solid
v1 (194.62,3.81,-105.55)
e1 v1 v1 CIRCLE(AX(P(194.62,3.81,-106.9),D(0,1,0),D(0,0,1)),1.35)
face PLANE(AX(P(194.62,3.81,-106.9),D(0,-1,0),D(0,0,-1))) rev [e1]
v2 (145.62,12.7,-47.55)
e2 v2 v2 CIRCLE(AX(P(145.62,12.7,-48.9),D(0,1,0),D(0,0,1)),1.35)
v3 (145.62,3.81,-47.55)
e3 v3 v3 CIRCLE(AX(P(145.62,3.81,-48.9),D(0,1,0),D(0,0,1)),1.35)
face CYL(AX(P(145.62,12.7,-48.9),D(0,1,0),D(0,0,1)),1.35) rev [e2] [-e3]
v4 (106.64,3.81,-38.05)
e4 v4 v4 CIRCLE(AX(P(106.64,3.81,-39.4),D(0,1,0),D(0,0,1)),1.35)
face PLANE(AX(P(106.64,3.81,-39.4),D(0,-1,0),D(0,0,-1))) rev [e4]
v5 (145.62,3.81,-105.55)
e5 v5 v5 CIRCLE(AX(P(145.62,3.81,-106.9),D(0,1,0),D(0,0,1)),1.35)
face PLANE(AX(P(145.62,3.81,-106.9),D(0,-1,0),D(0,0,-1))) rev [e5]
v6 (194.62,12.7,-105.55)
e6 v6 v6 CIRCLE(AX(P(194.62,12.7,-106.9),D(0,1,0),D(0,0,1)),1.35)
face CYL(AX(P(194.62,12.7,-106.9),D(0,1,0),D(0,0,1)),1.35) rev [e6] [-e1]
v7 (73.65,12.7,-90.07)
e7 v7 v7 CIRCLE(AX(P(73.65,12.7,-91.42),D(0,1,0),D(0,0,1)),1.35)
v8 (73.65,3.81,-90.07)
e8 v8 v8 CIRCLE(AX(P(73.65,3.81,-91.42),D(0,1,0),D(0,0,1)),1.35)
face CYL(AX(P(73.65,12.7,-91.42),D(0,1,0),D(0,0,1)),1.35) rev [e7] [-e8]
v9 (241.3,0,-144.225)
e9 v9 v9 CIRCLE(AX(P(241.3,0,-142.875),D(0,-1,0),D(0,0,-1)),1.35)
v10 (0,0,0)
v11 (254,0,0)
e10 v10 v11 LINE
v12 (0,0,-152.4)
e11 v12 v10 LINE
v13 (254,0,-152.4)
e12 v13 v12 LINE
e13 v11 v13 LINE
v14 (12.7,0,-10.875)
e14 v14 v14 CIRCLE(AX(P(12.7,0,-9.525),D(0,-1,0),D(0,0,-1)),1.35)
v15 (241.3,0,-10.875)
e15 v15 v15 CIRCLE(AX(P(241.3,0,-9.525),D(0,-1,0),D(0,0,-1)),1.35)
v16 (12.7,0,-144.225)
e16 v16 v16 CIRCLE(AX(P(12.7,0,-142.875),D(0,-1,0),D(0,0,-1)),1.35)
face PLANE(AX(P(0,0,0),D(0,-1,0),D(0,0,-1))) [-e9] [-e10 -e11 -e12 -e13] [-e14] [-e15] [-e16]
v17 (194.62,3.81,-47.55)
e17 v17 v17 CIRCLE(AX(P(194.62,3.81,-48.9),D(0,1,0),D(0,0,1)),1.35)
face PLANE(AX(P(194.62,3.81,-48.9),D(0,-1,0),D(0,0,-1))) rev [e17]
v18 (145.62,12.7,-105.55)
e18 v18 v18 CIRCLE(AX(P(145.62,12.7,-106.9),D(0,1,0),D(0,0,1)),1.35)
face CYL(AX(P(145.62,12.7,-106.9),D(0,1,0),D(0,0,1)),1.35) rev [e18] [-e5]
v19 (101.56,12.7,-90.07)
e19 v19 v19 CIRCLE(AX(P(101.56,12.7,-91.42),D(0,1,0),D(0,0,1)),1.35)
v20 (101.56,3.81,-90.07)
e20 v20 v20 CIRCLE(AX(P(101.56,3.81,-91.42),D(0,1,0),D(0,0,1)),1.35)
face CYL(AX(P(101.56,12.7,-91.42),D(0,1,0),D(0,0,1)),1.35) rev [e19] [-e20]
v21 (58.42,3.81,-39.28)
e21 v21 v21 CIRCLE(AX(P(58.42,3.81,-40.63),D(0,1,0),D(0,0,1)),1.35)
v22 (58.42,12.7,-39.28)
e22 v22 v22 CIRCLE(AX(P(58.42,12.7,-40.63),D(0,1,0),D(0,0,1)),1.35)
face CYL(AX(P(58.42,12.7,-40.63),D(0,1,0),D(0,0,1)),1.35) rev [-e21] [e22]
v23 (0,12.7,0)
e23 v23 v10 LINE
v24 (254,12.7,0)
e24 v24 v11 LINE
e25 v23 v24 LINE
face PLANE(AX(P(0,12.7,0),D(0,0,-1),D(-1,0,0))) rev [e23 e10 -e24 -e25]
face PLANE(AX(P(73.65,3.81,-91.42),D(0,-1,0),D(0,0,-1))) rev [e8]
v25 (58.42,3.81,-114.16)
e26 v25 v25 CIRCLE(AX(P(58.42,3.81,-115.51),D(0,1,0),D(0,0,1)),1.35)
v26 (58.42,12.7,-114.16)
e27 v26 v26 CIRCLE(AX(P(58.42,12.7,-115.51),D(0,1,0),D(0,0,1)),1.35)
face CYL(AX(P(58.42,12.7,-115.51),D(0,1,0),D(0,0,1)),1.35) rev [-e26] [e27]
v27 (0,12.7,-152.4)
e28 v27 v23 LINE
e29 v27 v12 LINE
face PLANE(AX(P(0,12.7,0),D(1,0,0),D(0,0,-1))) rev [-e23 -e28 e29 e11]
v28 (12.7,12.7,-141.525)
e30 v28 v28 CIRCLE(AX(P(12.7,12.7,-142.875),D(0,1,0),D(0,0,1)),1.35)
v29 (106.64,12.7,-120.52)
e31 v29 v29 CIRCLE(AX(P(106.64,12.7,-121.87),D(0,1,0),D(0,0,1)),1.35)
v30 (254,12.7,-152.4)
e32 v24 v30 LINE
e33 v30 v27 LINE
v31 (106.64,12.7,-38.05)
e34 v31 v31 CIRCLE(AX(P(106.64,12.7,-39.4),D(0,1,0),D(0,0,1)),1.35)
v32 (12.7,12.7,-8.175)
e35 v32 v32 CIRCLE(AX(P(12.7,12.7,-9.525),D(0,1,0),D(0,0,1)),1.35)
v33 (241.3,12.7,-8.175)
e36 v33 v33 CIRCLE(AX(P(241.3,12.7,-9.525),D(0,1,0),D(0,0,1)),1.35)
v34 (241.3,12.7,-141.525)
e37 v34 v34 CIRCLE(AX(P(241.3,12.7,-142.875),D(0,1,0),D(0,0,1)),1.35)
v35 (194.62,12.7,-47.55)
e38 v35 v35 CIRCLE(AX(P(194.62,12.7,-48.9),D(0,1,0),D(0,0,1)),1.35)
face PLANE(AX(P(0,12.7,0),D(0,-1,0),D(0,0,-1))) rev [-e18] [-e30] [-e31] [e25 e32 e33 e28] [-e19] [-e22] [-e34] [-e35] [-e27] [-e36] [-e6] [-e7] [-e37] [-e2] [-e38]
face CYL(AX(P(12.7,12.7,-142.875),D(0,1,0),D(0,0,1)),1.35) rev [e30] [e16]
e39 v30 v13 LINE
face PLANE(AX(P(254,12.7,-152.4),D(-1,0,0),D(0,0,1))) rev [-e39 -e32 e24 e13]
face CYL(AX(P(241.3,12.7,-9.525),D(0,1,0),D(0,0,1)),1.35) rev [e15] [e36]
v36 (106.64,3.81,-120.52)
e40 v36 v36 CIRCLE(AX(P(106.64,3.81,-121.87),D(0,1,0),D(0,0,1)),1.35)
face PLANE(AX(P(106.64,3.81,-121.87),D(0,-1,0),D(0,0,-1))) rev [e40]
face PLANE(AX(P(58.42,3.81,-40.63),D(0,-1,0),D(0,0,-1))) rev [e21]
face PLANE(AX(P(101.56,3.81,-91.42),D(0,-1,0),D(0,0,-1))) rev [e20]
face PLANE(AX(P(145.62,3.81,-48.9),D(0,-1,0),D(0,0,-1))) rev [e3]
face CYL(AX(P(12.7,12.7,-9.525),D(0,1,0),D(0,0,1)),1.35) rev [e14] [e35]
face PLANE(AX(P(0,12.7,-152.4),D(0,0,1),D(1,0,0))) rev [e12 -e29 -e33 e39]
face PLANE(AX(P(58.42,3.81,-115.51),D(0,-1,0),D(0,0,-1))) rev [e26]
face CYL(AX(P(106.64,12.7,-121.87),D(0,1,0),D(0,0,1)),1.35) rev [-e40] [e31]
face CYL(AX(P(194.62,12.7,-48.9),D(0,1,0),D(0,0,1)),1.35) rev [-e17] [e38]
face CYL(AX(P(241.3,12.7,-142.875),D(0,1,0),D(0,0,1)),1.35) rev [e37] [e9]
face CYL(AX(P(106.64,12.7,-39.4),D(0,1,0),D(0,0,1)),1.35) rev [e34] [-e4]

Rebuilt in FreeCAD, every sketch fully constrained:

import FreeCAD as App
import Part
import Sketcher
from FreeCAD import Vector
Q = App.Units.Quantity


def add_polygon(sketch, points):
    """Adds a closed chain of lines whose ends are joined by coincident constraints."""
    first, n = sketch.GeometryCount, len(points)
    for a, b in zip(points, points[1:] + points[:1]):
        sketch.addGeometry(Part.LineSegment(App.Vector(*a, 0), App.Vector(*b, 0)), False)
    for i in range(n):
        sketch.addConstraint(Sketcher.Constraint("Coincident", first + i, 2, first + (i + 1) % n, 1))

doc = App.newDocument("Part")
body = doc.addObject("PartDesign::Body", "Body")

# Sketch on XZ plane
sketch1 = body.newObject("Sketcher::SketchObject", "Sketch")
sketch1.AttachmentSupport = (doc.getObject("XZ_Plane"), [""])
sketch1.MapMode = "FlatFace"
add_polygon(sketch1, [(0, -152), (0, 0), (254, 0), (254, -152)])  # lines 0-3
sketch1.addConstraint([
    Sketcher.Constraint("Vertical", 0),
    Sketcher.Constraint("Horizontal", 1),
    Sketcher.Constraint("Vertical", 2),
    Sketcher.Constraint("Horizontal", 3),
    Sketcher.Constraint("Coincident", 0, 2, -1, 1),
    Sketcher.Constraint("DistanceX", 1, 1, 1, 2, Q("10 in")),
    Sketcher.Constraint("DistanceY", 0, 1, 0, 2, Q("6 in")),
])
pad1 = body.newObject("PartDesign::Pad", "Pad")
pad1.Profile = sketch1
pad1.Length = Q("0.5 in")
pad1.Reversed = True

# Sketch on XZ plane
sketch2 = body.newObject("Sketcher::SketchObject", "Sketch001")
sketch2.AttachmentSupport = (doc.getObject("XZ_Plane"), [""])
sketch2.MapMode = "FlatFace"
sketch2.AttachmentOffset = App.Placement(Vector(0, 0, -0.5 * 25.4), App.Rotation())
sketch2.addGeometry([
    Part.Circle(Vector(194.6, -48.9, 0), Vector(0, 0, 1), 1.4),  # 0
    Part.Circle(Vector(194.6, -106.9, 0), Vector(0, 0, 1), 1.4),  # 1
    Part.Circle(Vector(145.6, -106.9, 0), Vector(0, 0, 1), 1.4),  # 2
    Part.Circle(Vector(145.6, -48.9, 0), Vector(0, 0, 1), 1.4),  # 3
    Part.Circle(Vector(106.6, -121.9, 0), Vector(0, 0, 1), 1.4),  # 4
    Part.Circle(Vector(58.4, -115.5, 0), Vector(0, 0, 1), 1.4),  # 5
    Part.Circle(Vector(101.6, -91.4, 0), Vector(0, 0, 1), 1.4),  # 6
    Part.Circle(Vector(73.7, -91.4, 0), Vector(0, 0, 1), 1.4),  # 7
    Part.Circle(Vector(58.4, -40.6, 0), Vector(0, 0, 1), 1.4),  # 8
    Part.Circle(Vector(106.6, -39.4, 0), Vector(0, 0, 1), 1.4),  # 9
], False)
sketch2.addConstraint([
    Sketcher.Constraint("Equal", 0, 1),
    Sketcher.Constraint("Equal", 1, 2),
    Sketcher.Constraint("Equal", 2, 3),
    Sketcher.Constraint("Equal", 3, 4),
    Sketcher.Constraint("Equal", 4, 5),
    Sketcher.Constraint("Equal", 5, 6),
    Sketcher.Constraint("Equal", 6, 7),
    Sketcher.Constraint("Equal", 7, 8),
    Sketcher.Constraint("Equal", 8, 9),
    Sketcher.Constraint("Horizontal", 1, 3, 2, 3),
    Sketcher.Constraint("Horizontal", 0, 3, 3, 3),
    Sketcher.Constraint("Horizontal", 6, 3, 7, 3),
    Sketcher.Constraint("Vertical", 0, 3, 1, 3),
    Sketcher.Constraint("Vertical", 2, 3, 3, 3),
    Sketcher.Constraint("Vertical", 5, 3, 8, 3),
    Sketcher.Constraint("Vertical", 4, 3, 9, 3),
    Sketcher.Constraint("DistanceX", -1, 1, 5, 3, Q("2.3 in")),
    Sketcher.Constraint("DistanceX", 6, 3, 4, 3, Q("0.2 in")),
    Sketcher.Constraint("Diameter", 0, 2.7),
    Sketcher.Constraint("DistanceX", -1, 1, 0, 3, 194.62),
    Sketcher.Constraint("DistanceY", 0, 3, -1, 1, 48.9),
    Sketcher.Constraint("DistanceY", 1, 3, -1, 1, 106.9),
    Sketcher.Constraint("DistanceX", -1, 1, 2, 3, 145.62),
    Sketcher.Constraint("DistanceX", -1, 1, 4, 3, 106.64),
    Sketcher.Constraint("DistanceY", 4, 3, -1, 1, 121.87),
    Sketcher.Constraint("DistanceY", 5, 3, -1, 1, 115.51),
    Sketcher.Constraint("DistanceY", 6, 3, -1, 1, 91.42),
    Sketcher.Constraint("DistanceX", -1, 1, 7, 3, 73.65),
    Sketcher.Constraint("DistanceY", 8, 3, -1, 1, 40.63),
    Sketcher.Constraint("DistanceY", 9, 3, -1, 1, 39.4),
])
doc.recompute()
hole = body.newObject("PartDesign::Hole", "Hole")
hole.Profile = sketch2
hole.ThreadType = "None"
hole.Diameter = 2.7
hole.DepthType = "Dimension"
hole.Depth = Q("0.35 in")
hole.DrillPoint = "Flat"
hole.Reversed = True

# Sketch on XZ plane
sketch3 = body.newObject("Sketcher::SketchObject", "Sketch002")
sketch3.AttachmentSupport = (doc.getObject("XZ_Plane"), [""])
sketch3.MapMode = "FlatFace"
sketch3.AttachmentOffset = App.Placement(Vector(0, 0, -0.5 * 25.4), App.Rotation())
sketch3.addGeometry([
    Part.Circle(Vector(12.7, -9.5, 0), Vector(0, 0, 1), 1.4),
    Part.Circle(Vector(241.3, -9.5, 0), Vector(0, 0, 1), 1.4),
    Part.Circle(Vector(241.3, -142.9, 0), Vector(0, 0, 1), 1.4),
    Part.Circle(Vector(12.7, -142.9, 0), Vector(0, 0, 1), 1.4),
], False)
sketch3.addConstraint([
    Sketcher.Constraint("Equal", 0, 1),
    Sketcher.Constraint("Equal", 1, 2),
    Sketcher.Constraint("Equal", 2, 3),
    Sketcher.Constraint("Horizontal", 0, 3, 1, 3),
    Sketcher.Constraint("Horizontal", 2, 3, 3, 3),
    Sketcher.Constraint("Vertical", 1, 3, 2, 3),
    Sketcher.Constraint("Vertical", 0, 3, 3, 3),
    Sketcher.Constraint("DistanceX", 0, 3, 1, 3, Q("9 in")),
    Sketcher.Constraint("DistanceX", -1, 1, 0, 3, Q("0.5 in")),
    Sketcher.Constraint("Diameter", 0, 2.7),
    Sketcher.Constraint("DistanceY", 2, 3, 1, 3, Q("5.25 in")),
    Sketcher.Constraint("DistanceY", 0, 3, -1, 1, Q("0.375 in")),
])
doc.recompute()
hole2 = body.newObject("PartDesign::Hole", "Hole001")
hole2.Profile = sketch3
hole2.ThreadType = "None"
hole2.Diameter = 2.7
hole2.DepthType = "Dimension"
hole2.Depth = Q("3.75 in")
hole2.DrillPoint = "Flat"
hole2.Reversed = True

doc.recompute()
